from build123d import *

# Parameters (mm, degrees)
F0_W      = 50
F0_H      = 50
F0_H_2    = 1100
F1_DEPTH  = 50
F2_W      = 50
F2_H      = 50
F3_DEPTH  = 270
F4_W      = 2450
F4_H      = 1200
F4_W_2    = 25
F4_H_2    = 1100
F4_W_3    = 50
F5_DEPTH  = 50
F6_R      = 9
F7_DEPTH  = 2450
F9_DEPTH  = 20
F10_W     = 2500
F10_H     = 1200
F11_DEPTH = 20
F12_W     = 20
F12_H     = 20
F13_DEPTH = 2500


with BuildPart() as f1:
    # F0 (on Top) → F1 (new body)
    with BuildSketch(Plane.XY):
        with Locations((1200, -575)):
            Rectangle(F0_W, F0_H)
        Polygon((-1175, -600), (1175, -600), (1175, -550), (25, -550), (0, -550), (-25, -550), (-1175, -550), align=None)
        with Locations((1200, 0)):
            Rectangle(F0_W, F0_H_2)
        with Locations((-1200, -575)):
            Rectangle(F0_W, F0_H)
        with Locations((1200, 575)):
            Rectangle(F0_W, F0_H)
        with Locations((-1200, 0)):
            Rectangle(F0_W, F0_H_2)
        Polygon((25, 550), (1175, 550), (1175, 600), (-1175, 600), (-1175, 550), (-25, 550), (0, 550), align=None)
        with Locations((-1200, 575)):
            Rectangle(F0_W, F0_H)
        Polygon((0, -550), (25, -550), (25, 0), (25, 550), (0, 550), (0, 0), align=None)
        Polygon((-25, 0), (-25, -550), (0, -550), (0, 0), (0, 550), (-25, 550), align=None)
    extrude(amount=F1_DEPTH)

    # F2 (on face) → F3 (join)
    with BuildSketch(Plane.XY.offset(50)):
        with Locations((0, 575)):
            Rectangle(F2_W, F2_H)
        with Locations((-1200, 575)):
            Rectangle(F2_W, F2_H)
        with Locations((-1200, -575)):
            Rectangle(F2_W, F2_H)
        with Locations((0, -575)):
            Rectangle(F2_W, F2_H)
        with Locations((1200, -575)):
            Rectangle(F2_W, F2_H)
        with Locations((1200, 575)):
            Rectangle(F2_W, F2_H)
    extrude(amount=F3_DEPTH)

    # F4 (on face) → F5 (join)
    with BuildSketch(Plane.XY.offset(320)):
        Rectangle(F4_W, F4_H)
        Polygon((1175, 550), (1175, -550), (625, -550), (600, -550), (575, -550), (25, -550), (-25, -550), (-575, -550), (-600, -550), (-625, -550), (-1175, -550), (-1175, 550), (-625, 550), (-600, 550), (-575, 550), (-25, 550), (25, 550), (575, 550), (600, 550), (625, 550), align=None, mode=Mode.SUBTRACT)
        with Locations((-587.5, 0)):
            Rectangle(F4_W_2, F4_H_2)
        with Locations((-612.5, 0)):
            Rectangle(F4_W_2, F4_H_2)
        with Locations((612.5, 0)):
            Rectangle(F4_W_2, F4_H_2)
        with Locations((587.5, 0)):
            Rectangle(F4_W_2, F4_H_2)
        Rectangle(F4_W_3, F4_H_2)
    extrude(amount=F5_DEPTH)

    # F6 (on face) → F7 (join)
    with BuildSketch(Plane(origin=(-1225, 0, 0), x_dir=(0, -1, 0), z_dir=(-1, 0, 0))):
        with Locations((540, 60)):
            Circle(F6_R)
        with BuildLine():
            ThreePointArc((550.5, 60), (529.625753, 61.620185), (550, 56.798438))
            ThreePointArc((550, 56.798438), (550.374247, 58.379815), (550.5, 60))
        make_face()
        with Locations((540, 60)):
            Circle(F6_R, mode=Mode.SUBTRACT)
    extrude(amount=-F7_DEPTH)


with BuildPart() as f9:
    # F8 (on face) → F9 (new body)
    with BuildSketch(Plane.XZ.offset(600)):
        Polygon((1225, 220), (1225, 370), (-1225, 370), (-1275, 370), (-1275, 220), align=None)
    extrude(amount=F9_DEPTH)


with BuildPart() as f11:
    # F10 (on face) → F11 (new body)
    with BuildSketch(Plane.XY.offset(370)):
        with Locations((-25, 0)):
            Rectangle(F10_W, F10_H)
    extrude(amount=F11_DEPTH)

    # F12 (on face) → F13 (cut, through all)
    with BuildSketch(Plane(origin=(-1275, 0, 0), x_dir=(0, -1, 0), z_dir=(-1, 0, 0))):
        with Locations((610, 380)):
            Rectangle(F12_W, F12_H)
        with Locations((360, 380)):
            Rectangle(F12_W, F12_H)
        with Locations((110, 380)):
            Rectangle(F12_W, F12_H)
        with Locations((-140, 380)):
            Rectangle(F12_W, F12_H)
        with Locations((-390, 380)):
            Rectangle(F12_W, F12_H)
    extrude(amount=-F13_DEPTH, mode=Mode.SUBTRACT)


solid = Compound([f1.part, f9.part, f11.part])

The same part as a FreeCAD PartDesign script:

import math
import FreeCAD as App
import Part
import Sketcher
from FreeCAD import Vector


def add_polygon(sketch, points):
    """Adds a closed chain of lines whose ends are joined by coincident constraints."""
    first, n = sketch.GeometryCount, len(points)
    for a, b in zip(points, points[1:] + points[:1]):
        sketch.addGeometry(Part.LineSegment(App.Vector(*a, 0), App.Vector(*b, 0)), False)
    for i in range(n):
        sketch.addConstraint(Sketcher.Constraint("Coincident", first + i, 2, first + (i + 1) % n, 1))

doc = App.newDocument("Part")
body = doc.addObject("PartDesign::Body", "Body")

sketch1 = doc.addObject("Sketcher::SketchObject", "Sketch")
body.addObject(sketch1)
sketch1.AttachmentSupport = (doc.XY_Plane, [""])
sketch1.MapMode = "FlatFace"
add_polygon(sketch1, [(1225, 600), (-1225, 600), (-1225, -600), (1225, -600)])
add_polygon(sketch1, [(-1175, -550), (-1175, 550), (-25, 550), (-25, -550)])
add_polygon(sketch1, [(25, 550), (1175, 550), (1175, -550), (25, -550)])
sketch1.addConstraint([
    Sketcher.Constraint("Horizontal", 0),
    Sketcher.Constraint("Vertical", 1),
    Sketcher.Constraint("Horizontal", 2),
    Sketcher.Constraint("Vertical", 3),
    Sketcher.Constraint("Vertical", 4),
    Sketcher.Constraint("Horizontal", 5),
    Sketcher.Constraint("Vertical", 6),
    Sketcher.Constraint("Horizontal", 7),
    Sketcher.Constraint("Horizontal", 8),
    Sketcher.Constraint("Vertical", 9),
    Sketcher.Constraint("Horizontal", 10),
    Sketcher.Constraint("Vertical", 11),
    Sketcher.Constraint("Symmetric", 0, 2, 2, 2, -1, 1),
    Sketcher.Constraint("Symmetric", 7, 2, 8, 2, -1, 1),
    Sketcher.Constraint("Symmetric", 5, 2, 10, 2, -1, 1),
    Sketcher.Constraint("Horizontal", 5, 2, 8, 2),
    Sketcher.Constraint("DistanceX", 0, 2, 0, 1, 2450.0),
    Sketcher.Constraint("DistanceX", 5, 1, 5, 2, 1150.0),
    Sketcher.Constraint("DistanceY", 1, 2, 1, 1, 1200.0),
    Sketcher.Constraint("DistanceY", 4, 1, 4, 2, 1100.0),
    Sketcher.Constraint("DistanceX", 4, 2, -1, 1, 1175.0),
])
pad1 = doc.addObject("PartDesign::Pad", "Pad")
body.addObject(pad1)
pad1.Profile = sketch1
pad1.Length = 50

sketch2 = doc.addObject("Sketcher::SketchObject", "Sketch001")
body.addObject(sketch2)
sketch2.AttachmentSupport = (doc.XY_Plane, [""])
sketch2.MapMode = "FlatFace"
sketch2.AttachmentOffset = App.Placement(Vector(0, 0, 50), App.Rotation())
add_polygon(sketch2, [(-25, 600), (-25, 550), (25, 550), (25, 600)])
add_polygon(sketch2, [(-1225, 600), (-1225, 550), (-1175, 550), (-1175, 600)])
add_polygon(sketch2, [(-1225, -550), (-1225, -600), (-1175, -600), (-1175, -550)])
add_polygon(sketch2, [(-25, -550), (-25, -600), (25, -600), (25, -550)])
add_polygon(sketch2, [(1175, -550), (1175, -600), (1225, -600), (1225, -550)])
add_polygon(sketch2, [(1175, 600), (1175, 550), (1225, 550), (1225, 600)])
sketch2.addConstraint([
    Sketcher.Constraint("Vertical", 0),
    Sketcher.Constraint("Horizontal", 1),
    Sketcher.Constraint("Vertical", 2),
    Sketcher.Constraint("Horizontal", 3),
    Sketcher.Constraint("Vertical", 4),
    Sketcher.Constraint("Horizontal", 5),
    Sketcher.Constraint("Vertical", 6),
    Sketcher.Constraint("Horizontal", 7),
    Sketcher.Constraint("Vertical", 8),
    Sketcher.Constraint("Horizontal", 9),
    Sketcher.Constraint("Vertical", 10),
    Sketcher.Constraint("Horizontal", 11),
    Sketcher.Constraint("Vertical", 12),
    Sketcher.Constraint("Horizontal", 13),
    Sketcher.Constraint("Vertical", 14),
    Sketcher.Constraint("Horizontal", 15),
    Sketcher.Constraint("Vertical", 16),
    Sketcher.Constraint("Horizontal", 17),
    Sketcher.Constraint("Vertical", 18),
    Sketcher.Constraint("Horizontal", 19),
    Sketcher.Constraint("Vertical", 20),
    Sketcher.Constraint("Horizontal", 21),
    Sketcher.Constraint("Vertical", 22),
    Sketcher.Constraint("Horizontal", 23),
    Sketcher.Constraint("Symmetric", 2, 2, 12, 2, -1, 1),
    Sketcher.Constraint("Symmetric", 0, 2, 14, 2, -1, 1),
    Sketcher.Constraint("Symmetric", 6, 2, 16, 2, -1, 1),
    Sketcher.Constraint("Symmetric", 4, 2, 18, 2, -1, 1),
    Sketcher.Constraint("Symmetric", 10, 2, 20, 2, -1, 1),
    Sketcher.Constraint("Symmetric", 8, 2, 22, 2, -1, 1),
    Sketcher.Constraint("Symmetric", 9, 2, 16, 2, -2),
    Sketcher.Constraint("Symmetric", 11, 2, 18, 2, -2),
    Sketcher.Constraint("Horizontal", 1, 2, 4, 2),
    Sketcher.Constraint("Horizontal", 3, 2, 6, 2),
    Sketcher.Constraint("Vertical", 3, 2, 12, 2),
    Sketcher.Constraint("Equal", 3, 5),
    Sketcher.Constraint("Equal", 23, 0),
    Sketcher.Constraint("DistanceX", 1, 1, 1, 2, 50.0),
    Sketcher.Constraint("DistanceY", -1, 1, 0, 2, 550.0),
    Sketcher.Constraint("DistanceX", 4, 2, -1, 1, 1225.0),
])
pad2 = doc.addObject("PartDesign::Pad", "Pad001")
body.addObject(pad2)
pad2.Profile = sketch2
pad2.Length = 270

sketch3 = doc.addObject("Sketcher::SketchObject", "Sketch002")
body.addObject(sketch3)
sketch3.AttachmentSupport = (doc.XY_Plane, [""])
sketch3.MapMode = "FlatFace"
sketch3.AttachmentOffset = App.Placement(Vector(0, 0, 320), App.Rotation())
add_polygon(sketch3, [(-1225, 600), (-1225, -600), (1225, -600), (1225, 600)])
add_polygon(sketch3, [(-1175, 550), (-625, 550), (-625, -550), (-1175, -550)])
add_polygon(sketch3, [(-575, 550), (-25, 550), (-25, -550), (-575, -550)])
add_polygon(sketch3, [(25, 550), (575, 550), (575, -550), (25, -550)])
add_polygon(sketch3, [(625, 550), (1175, 550), (1175, -550), (625, -550)])
sketch3.addConstraint([
    Sketcher.Constraint("Vertical", 0),
    Sketcher.Constraint("Horizontal", 1),
    Sketcher.Constraint("Vertical", 2),
    Sketcher.Constraint("Horizontal", 3),
    Sketcher.Constraint("Horizontal", 4),
    Sketcher.Constraint("Vertical", 5),
    Sketcher.Constraint("Horizontal", 6),
    Sketcher.Constraint("Vertical", 7),
    Sketcher.Constraint("Horizontal", 8),
    Sketcher.Constraint("Vertical", 9),
    Sketcher.Constraint("Horizontal", 10),
    Sketcher.Constraint("Vertical", 11),
    Sketcher.Constraint("Horizontal", 12),
    Sketcher.Constraint("Vertical", 13),
    Sketcher.Constraint("Horizontal", 14),
    Sketcher.Constraint("Vertical", 15),
    Sketcher.Constraint("Horizontal", 16),
    Sketcher.Constraint("Vertical", 17),
    Sketcher.Constraint("Horizontal", 18),
    Sketcher.Constraint("Vertical", 19),
    Sketcher.Constraint("Symmetric", 0, 2, 2, 2, -1, 1),
    Sketcher.Constraint("Symmetric", 10, 2, 12, 2, -1, 1),
    Sketcher.Constraint("Symmetric", 8, 2, 14, 2, -1, 1),
    Sketcher.Constraint("Symmetric", 6, 2, 16, 2, -1, 1),
    Sketcher.Constraint("Symmetric", 4, 2, 18, 2, -1, 1),
    Sketcher.Constraint("Horizontal", 7, 2, 8, 2),
    Sketcher.Constraint("Horizontal", 6, 2, 9, 2),
    Sketcher.Constraint("Horizontal", 11, 2, 12, 2),
    Sketcher.Constraint("Equal", 6, 8),
    Sketcher.Constraint("DistanceX", 1, 1, 1, 2, 2450.0),
    Sketcher.Constraint("DistanceX", 4, 1, 4, 2, 550.0),
    Sketcher.Constraint("DistanceY", 0, 2, 0, 1, 1200.0),
    Sketcher.Constraint("DistanceY", 5, 2, 5, 1, 1100.0),
    Sketcher.Constraint("DistanceX", 4, 2, -1, 1, 625.0),
    Sketcher.Constraint("DistanceX", 8, 2, -1, 1, 25.0),
])
pad3 = doc.addObject("PartDesign::Pad", "Pad002")
body.addObject(pad3)
pad3.Profile = sketch3
pad3.Length = 50

sketch4 = doc.addObject("Sketcher::SketchObject", "Sketch003")
body.addObject(sketch4)
sketch4.AttachmentSupport = (doc.YZ_Plane, [""])
sketch4.MapMode = "FlatFace"
sketch4.AttachmentOffset = App.Placement(Vector(0, 0, -1225), App.Rotation())
sketch4.addGeometry([
    Part.ArcOfCircle(Part.Circle(Vector(-540, 60, 0), Vector(0, 0, 1), 10.5), math.radians(-162.24721), math.radians(180.000001)),
    Part.ArcOfCircle(Part.Circle(Vector(-540.000002, 60, 0), Vector(0, 0, 1), 10.499998), math.radians(179.999999), math.radians(197.752792)),
    Part.Circle(Vector(-540, 60, 0), Vector(0, 0, 1), 9),
], False)
sketch4.addConstraint([
    Sketcher.Constraint("Tangent", 0, 1, 1, 2),
    Sketcher.Constraint("Coincident", 1, 1, 0, 2),
    Sketcher.Constraint("Coincident", 2, 3, 0, 3),
    Sketcher.Constraint("Horizontal", 2, 3, 1, 1),
    Sketcher.Constraint("Diameter", 2, 18.0),
    Sketcher.Constraint("Radius", 0, 10.5),
    Sketcher.Constraint("DistanceX", 0, 3, -1, 1, 540.0),
    Sketcher.Constraint("DistanceY", -1, 1, 0, 3, 60.0),
    Sketcher.Constraint("DistanceX", 0, 1, -1, 1, 550.0),
])
pad4 = doc.addObject("PartDesign::Pad", "Pad003")
body.addObject(pad4)
pad4.Profile = sketch4
pad4.Length = 2450
body2 = doc.addObject("PartDesign::Body", "Body001")

sketch5 = doc.addObject("Sketcher::SketchObject", "Sketch004")
body2.addObject(sketch5)
sketch5.AttachmentSupport = (doc.getObject("XZ_Plane001"), [""])
sketch5.MapMode = "FlatFace"
sketch5.AttachmentOffset = App.Placement(Vector(0, 0, 600), App.Rotation())
add_polygon(sketch5, [(1225, 220), (1225, 370), (-1275, 370), (-1275, 220)])
sketch5.addConstraint([
    Sketcher.Constraint("Vertical", 0),
    Sketcher.Constraint("Horizontal", 1),
    Sketcher.Constraint("Vertical", 2),
    Sketcher.Constraint("Horizontal", 3),
    Sketcher.Constraint("DistanceX", 1, 2, 1, 1, 2500.0),
    Sketcher.Constraint("DistanceY", 0, 1, 0, 2, 150.0),
    Sketcher.Constraint("DistanceX", -1, 1, 0, 2, 1225.0),
    Sketcher.Constraint("DistanceY", -1, 1, 0, 2, 370.0),
])
pad5 = doc.addObject("PartDesign::Pad", "Pad004")
body2.addObject(pad5)
pad5.Profile = sketch5
pad5.Length = 20
body3 = doc.addObject("PartDesign::Body", "Body002")
body3.AllowCompound = True

sketch6 = doc.addObject("Sketcher::SketchObject", "Sketch005")
body3.addObject(sketch6)
sketch6.AttachmentSupport = (doc.getObject("XY_Plane002"), [""])
sketch6.MapMode = "FlatFace"
sketch6.AttachmentOffset = App.Placement(Vector(0, 0, 370), App.Rotation())
add_polygon(sketch6, [(-1275, 600), (-1275, -600), (1225, -600), (1225, 600)])
sketch6.addConstraint([
    Sketcher.Constraint("Vertical", 0),
    Sketcher.Constraint("Horizontal", 1),
    Sketcher.Constraint("Vertical", 2),
    Sketcher.Constraint("Horizontal", 3),
    Sketcher.Constraint("DistanceX", 1, 1, 1, 2, 2500.0),
    Sketcher.Constraint("DistanceY", 0, 2, 0, 1, 1200.0),
    Sketcher.Constraint("DistanceX", 0, 2, -1, 1, 1275.0),
    Sketcher.Constraint("DistanceY", 0, 2, -1, 1, 600.0),
])
pad6 = doc.addObject("PartDesign::Pad", "Pad005")
body3.addObject(pad6)
pad6.Profile = sketch6
pad6.Length = 20

sketch7 = doc.addObject("Sketcher::SketchObject", "Sketch006")
body3.addObject(sketch7)
sketch7.AttachmentSupport = (doc.getObject("YZ_Plane002"), [""])
sketch7.MapMode = "FlatFace"
sketch7.AttachmentOffset = App.Placement(Vector(0, 0, -1275), App.Rotation())
add_polygon(sketch7, [(-600, 390), (-600, 370), (-620, 370), (-620, 390)])
add_polygon(sketch7, [(-350, 390), (-350, 370), (-370, 370), (-370, 390)])
add_polygon(sketch7, [(-100, 390), (-100, 370), (-120, 370), (-120, 390)])
add_polygon(sketch7, [(150, 390), (150, 370), (130, 370), (130, 390)])
add_polygon(sketch7, [(400, 390), (400, 370), (380, 370), (380, 390)])
sketch7.addConstraint([
    Sketcher.Constraint("Vertical", 0),
    Sketcher.Constraint("Horizontal", 1),
    Sketcher.Constraint("Vertical", 2),
    Sketcher.Constraint("Horizontal", 3),
    Sketcher.Constraint("Vertical", 4),
    Sketcher.Constraint("Horizontal", 5),
    Sketcher.Constraint("Vertical", 6),
    Sketcher.Constraint("Horizontal", 7),
    Sketcher.Constraint("Vertical", 8),
    Sketcher.Constraint("Horizontal", 9),
    Sketcher.Constraint("Vertical", 10),
    Sketcher.Constraint("Horizontal", 11),
    Sketcher.Constraint("Vertical", 12),
    Sketcher.Constraint("Horizontal", 13),
    Sketcher.Constraint("Vertical", 14),
    Sketcher.Constraint("Horizontal", 15),
    Sketcher.Constraint("Vertical", 16),
    Sketcher.Constraint("Horizontal", 17),
    Sketcher.Constraint("Vertical", 18),
    Sketcher.Constraint("Horizontal", 19),
    Sketcher.Constraint("Horizontal", 1, 2, 4, 2),
    Sketcher.Constraint("Horizontal", 3, 2, 6, 2),
    Sketcher.Constraint("Horizontal", 5, 2, 8, 2),
    Sketcher.Constraint("Horizontal", 7, 2, 10, 2),
    Sketcher.Constraint("Horizontal", 9, 2, 12, 2),
    Sketcher.Constraint("Horizontal", 11, 2, 14, 2),
    Sketcher.Constraint("Horizontal", 13, 2, 16, 2),
    Sketcher.Constraint("Horizontal", 15, 2, 18, 2),
    Sketcher.Constraint("Equal", 3, 5),
    Sketcher.Constraint("Equal", 7, 9),
    Sketcher.Constraint("Equal", 11, 13),
    Sketcher.Constraint("Equal", 15, 17),
    Sketcher.Constraint("Equal", 19, 0),
    Sketcher.Constraint("DistanceX", 1, 2, 1, 1, 20.0),
    Sketcher.Constraint("DistanceX", 0, 2, -1, 1, 600.0),
    Sketcher.Constraint("DistanceY", -1, 1, 0, 2, 370.0),
    Sketcher.Constraint("DistanceX", 4, 2, -1, 1, 350.0),
    Sketcher.Constraint("DistanceX", 8, 2, -1, 1, 100.0),
    Sketcher.Constraint("DistanceX", -1, 1, 12, 2, 150.0),
    Sketcher.Constraint("DistanceX", -1, 1, 16, 2, 400.0),
])
pocket1 = doc.addObject("PartDesign::Pocket", "Pocket")
body3.addObject(pocket1)
pocket1.Profile = sketch7
pocket1.Type = "ThroughAll"
pocket1.Reversed = True

doc.recompute()
